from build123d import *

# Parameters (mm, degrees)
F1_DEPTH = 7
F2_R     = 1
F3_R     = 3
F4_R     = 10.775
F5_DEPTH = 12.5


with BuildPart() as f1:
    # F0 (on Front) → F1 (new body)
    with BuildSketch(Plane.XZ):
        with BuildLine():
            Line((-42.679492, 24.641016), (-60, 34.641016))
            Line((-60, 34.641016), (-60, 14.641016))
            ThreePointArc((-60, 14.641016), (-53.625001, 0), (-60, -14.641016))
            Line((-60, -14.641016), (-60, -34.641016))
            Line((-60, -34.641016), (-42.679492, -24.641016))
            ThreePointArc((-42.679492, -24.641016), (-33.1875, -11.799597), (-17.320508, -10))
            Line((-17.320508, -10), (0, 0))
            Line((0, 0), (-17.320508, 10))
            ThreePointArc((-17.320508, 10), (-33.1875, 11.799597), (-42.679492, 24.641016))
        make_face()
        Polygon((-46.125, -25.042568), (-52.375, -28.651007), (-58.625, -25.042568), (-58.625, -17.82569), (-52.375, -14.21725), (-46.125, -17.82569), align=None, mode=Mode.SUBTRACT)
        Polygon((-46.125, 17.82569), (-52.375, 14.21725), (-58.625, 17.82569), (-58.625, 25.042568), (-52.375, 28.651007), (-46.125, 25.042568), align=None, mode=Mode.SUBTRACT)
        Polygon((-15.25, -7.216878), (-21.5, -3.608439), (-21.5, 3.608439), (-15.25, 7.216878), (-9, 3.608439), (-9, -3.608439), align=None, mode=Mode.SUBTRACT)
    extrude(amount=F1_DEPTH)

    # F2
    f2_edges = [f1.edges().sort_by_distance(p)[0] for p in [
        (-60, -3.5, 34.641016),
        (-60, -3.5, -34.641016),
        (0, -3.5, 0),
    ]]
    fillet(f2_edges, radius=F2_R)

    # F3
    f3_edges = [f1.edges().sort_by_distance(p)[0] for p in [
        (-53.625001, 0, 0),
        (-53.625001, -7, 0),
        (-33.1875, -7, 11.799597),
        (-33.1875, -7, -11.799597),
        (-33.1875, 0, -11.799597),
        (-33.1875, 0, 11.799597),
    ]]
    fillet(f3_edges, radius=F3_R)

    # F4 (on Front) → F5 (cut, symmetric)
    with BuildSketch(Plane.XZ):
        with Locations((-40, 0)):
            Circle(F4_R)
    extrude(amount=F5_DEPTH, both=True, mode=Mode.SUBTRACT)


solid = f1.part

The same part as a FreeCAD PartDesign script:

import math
import FreeCAD as App
import Part
import Sketcher

V = App.Vector
Q = App.Units.Quantity


def edges_at(feature, points):
    """Names of the edges that pass closest to the given points."""
    edges = feature.Shape.Edges
    near = lambda p: min(range(len(edges)), key=lambda i: edges[i].distToShape(Part.Vertex(*p))[0])
    return sorted({f"Edge{near(p) + 1}" for p in points})


def add_polygon(sketch, points):
    """Adds a closed chain of lines whose ends are joined by coincident constraints."""
    first, n = sketch.GeometryCount, len(points)
    for a, b in zip(points, points[1:] + points[:1]):
        sketch.addGeometry(Part.LineSegment(App.Vector(*a, 0), App.Vector(*b, 0)), False)
    for i in range(n):
        sketch.addConstraint(Sketcher.Constraint("Coincident", first + i, 2, first + (i + 1) % n, 1))

doc = App.newDocument("Part")
body = doc.addObject("PartDesign::Body", "Body")

# Sketch on XZ plane
sketch1 = body.newObject("Sketcher::SketchObject", "Sketch")
sketch1.AttachmentSupport = (doc.getObject("XZ_Plane"), [""])
sketch1.MapMode = "FlatFace"
sketch1.addGeometry(Part.LineSegment(V(-43, 25, 0), V(-60, 35, 0)), False)  # 0
sketch1.addGeometry(Part.LineSegment(V(-60, 35, 0), V(-60, 15, 0)), False)  # 1
sketch1.addGeometry(Part.ArcOfCircle(Part.Circle(V(-74, 0, 0), V(0, 0, 1), 20), math.radians(-47), math.radians(47)), False)  # 2
sketch1.addGeometry(Part.LineSegment(V(-60, -15, 0), V(-60, -35, 0)), False)  # 3
sketch1.addGeometry(Part.LineSegment(V(-60, -35, 0), V(-43, -25, 0)), False)  # 4
sketch1.addGeometry(Part.ArcOfCircle(Part.Circle(V(-23, -29, 0), V(0, 0, 1), 20), math.radians(73), math.radians(167)), False)  # 5
sketch1.addGeometry(Part.LineSegment(V(-17, -10, 0), V(0, 0, 0)), False)  # 6
sketch1.addGeometry(Part.LineSegment(V(0, 0, 0), V(-17, 10, 0)), False)  # 7
sketch1.addGeometry(Part.ArcOfCircle(Part.Circle(V(-23, 29, 0), V(0, 0, 1), 20), math.radians(-167), math.radians(-73)), False)  # 8
add_polygon(sketch1, [(-46, -18), (-46, -25), (-52, -29), (-59, -25), (-59, -18), (-52, -14)])  # lines 9-14
add_polygon(sketch1, [(-46, 25), (-46, 18), (-52, 14), (-59, 18), (-59, 25), (-52, 29)])  # lines 15-20
add_polygon(sketch1, [(-9, -4), (-15, -7), (-22, -4), (-22, 4), (-15, 7), (-9, 4)])  # lines 21-26
sketch1.addConstraint(Sketcher.Constraint("Coincident", 0, 2, 1, 1))
sketch1.addConstraint(Sketcher.Constraint("Coincident", 1, 2, 2, 2))
sketch1.addConstraint(Sketcher.Constraint("Coincident", 2, 1, 3, 1))
sketch1.addConstraint(Sketcher.Constraint("Coincident", 3, 2, 4, 1))
sketch1.addConstraint(Sketcher.Constraint("Coincident", 4, 2, 5, 2))
sketch1.addConstraint(Sketcher.Constraint("Coincident", 5, 1, 6, 1))
sketch1.addConstraint(Sketcher.Constraint("Coincident", 6, 2, 7, 1))
sketch1.addConstraint(Sketcher.Constraint("Coincident", 7, 2, 8, 2))
sketch1.addConstraint(Sketcher.Constraint("Coincident", 8, 1, 0, 1))
sketch1.addConstraint(Sketcher.Constraint("Vertical", 1))
sketch1.addConstraint(Sketcher.Constraint("Vertical", 3))
sketch1.addConstraint(Sketcher.Constraint("Vertical", 9))
sketch1.addConstraint(Sketcher.Constraint("Vertical", 12))
sketch1.addConstraint(Sketcher.Constraint("Vertical", 15))
sketch1.addConstraint(Sketcher.Constraint("Vertical", 18))
sketch1.addConstraint(Sketcher.Constraint("Vertical", 23))
sketch1.addConstraint(Sketcher.Constraint("Vertical", 26))
sketch1.addConstraint(Sketcher.Constraint("Coincident", 6, 2, -1, 1))
sketch1.addConstraint(Sketcher.Constraint("Equal", 2, 5))
sketch1.addConstraint(Sketcher.Constraint("Equal", 5, 8))
sketch1.addConstraint(Sketcher.Constraint("Symmetric", 5, 3, 8, 3, -1))
sketch1.addConstraint(Sketcher.Constraint("Symmetric", 1, 2, 2, 1, -1))
sketch1.addConstraint(Sketcher.Constraint("Symmetric", 14, 2, 15, 2, -1))
sketch1.addConstraint(Sketcher.Constraint("Symmetric", 13, 2, 16, 2, -1))
sketch1.addConstraint(Sketcher.Constraint("Symmetric", 12, 2, 17, 2, -1))
sketch1.addConstraint(Sketcher.Constraint("Symmetric", 10, 2, 19, 2, -1))
sketch1.addConstraint(Sketcher.Constraint("Symmetric", 21, 2, 24, 2, -1))
sketch1.addConstraint(Sketcher.Constraint("Parallel", 4, 6))
sketch1.addConstraint(Sketcher.Constraint("Parallel", 0, 7))
sketch1.addConstraint(Sketcher.Constraint("Parallel", 6, 10))
sketch1.addConstraint(Sketcher.Constraint("Parallel", 7, 11))
sketch1.addConstraint(Sketcher.Constraint("Parallel", 10, 13))
sketch1.addConstraint(Sketcher.Constraint("Parallel", 11, 14))
sketch1.addConstraint(Sketcher.Constraint("Parallel", 13, 16))
sketch1.addConstraint(Sketcher.Constraint("Parallel", 16, 19))
sketch1.addConstraint(Sketcher.Constraint("Parallel", 17, 20))
sketch1.addConstraint(Sketcher.Constraint("Parallel", 19, 21))
sketch1.addConstraint(Sketcher.Constraint("Parallel", 20, 22))
sketch1.addConstraint(Sketcher.Constraint("Parallel", 21, 24))
sketch1.addConstraint(Sketcher.Constraint("Parallel", 22, 25))
sketch1.addConstraint(Sketcher.Constraint("Horizontal", 9, 2, 11, 2))
sketch1.addConstraint(Sketcher.Constraint("Horizontal", 12, 2, 14, 2))
sketch1.addConstraint(Sketcher.Constraint("Horizontal", 23, 2, 25, 2))
sketch1.addConstraint(Sketcher.Constraint("Vertical", 4, 2, 8, 1))
sketch1.addConstraint(Sketcher.Constraint("Equal", 18, 23))
sketch1.addConstraint(Sketcher.Constraint("Equal", 4, 6))
sketch1.addConstraint(Sketcher.Constraint("Equal", 20, 21))
sketch1.addConstraint(Sketcher.Constraint("Radius", 2, 20.0))
sketch1.addConstraint(Sketcher.Constraint("DistanceY", 1, 2, 1, 1, 20.0))
sketch1.addConstraint(Sketcher.Constraint("Angle", 0, Q("150 deg")))
sketch1.addConstraint(Sketcher.Constraint("Distance", 0, 20.0))
sketch1.addConstraint(Sketcher.Constraint("DistanceX", 0, 2, -1, 1, 60.0))
sketch1.addConstraint(Sketcher.Constraint("DistanceX", 25, 2, -1, 1, 9.0))
sketch1.addConstraint(Sketcher.Constraint("DistanceX", 22, 2, -1, 1, 21.5))
sketch1.addConstraint(Sketcher.Constraint("DistanceX", 2, 3, 16, 2, 21.250001))
sketch1.addConstraint(Sketcher.Constraint("DistanceX", 2, 3, -1, 1, 73.625001))
sketch1.addConstraint(Sketcher.Constraint("DistanceY", 23, 1, 23, 2, 7.216878))
sketch1.addConstraint(Sketcher.Constraint("DistanceY", 5, 3, 10, 2, 0.469098))
pad1 = body.newObject("PartDesign::Pad", "Pad")
pad1.Profile = sketch1
pad1.Length = 7
doc.recompute()

fillet = body.newObject("PartDesign::Fillet", "Fillet")
fillet.Base = (pad1, edges_at(pad1, [(-60, -3.5, 34.641), (-60, -3.5, -34.641), (0, -3.5, 0)]))
fillet.Radius = 1
doc.recompute()

fillet2 = body.newObject("PartDesign::Fillet", "Fillet001")
fillet2.Base = (fillet, edges_at(fillet, [
    (-53.625, 0, 0),
    (-53.625, -7, 0),
    (-33.187, -7, 11.8),
    (-33.187, -7, -11.8),
    (-33.187, 0, -11.8),
    (-33.187, 0, 11.8),
]))
fillet2.Radius = 3

# Sketch on XZ plane
sketch2 = body.newObject("Sketcher::SketchObject", "Sketch001")
sketch2.AttachmentSupport = (doc.getObject("XZ_Plane"), [""])
sketch2.MapMode = "FlatFace"
sketch2.addGeometry(Part.Circle(V(-40, 0, 0), V(0, 0, 1), 11), False)
sketch2.addConstraint(Sketcher.Constraint("PointOnObject", 0, 3, -1))
sketch2.addConstraint(Sketcher.Constraint("Diameter", 0, 21.55))
sketch2.addConstraint(Sketcher.Constraint("DistanceX", 0, 3, -1, 1, 40.0))
pocket1 = body.newObject("PartDesign::Pocket", "Pocket")
pocket1.Profile = sketch2
pocket1.Length = 25
pocket1.Midplane = True

doc.recompute()
